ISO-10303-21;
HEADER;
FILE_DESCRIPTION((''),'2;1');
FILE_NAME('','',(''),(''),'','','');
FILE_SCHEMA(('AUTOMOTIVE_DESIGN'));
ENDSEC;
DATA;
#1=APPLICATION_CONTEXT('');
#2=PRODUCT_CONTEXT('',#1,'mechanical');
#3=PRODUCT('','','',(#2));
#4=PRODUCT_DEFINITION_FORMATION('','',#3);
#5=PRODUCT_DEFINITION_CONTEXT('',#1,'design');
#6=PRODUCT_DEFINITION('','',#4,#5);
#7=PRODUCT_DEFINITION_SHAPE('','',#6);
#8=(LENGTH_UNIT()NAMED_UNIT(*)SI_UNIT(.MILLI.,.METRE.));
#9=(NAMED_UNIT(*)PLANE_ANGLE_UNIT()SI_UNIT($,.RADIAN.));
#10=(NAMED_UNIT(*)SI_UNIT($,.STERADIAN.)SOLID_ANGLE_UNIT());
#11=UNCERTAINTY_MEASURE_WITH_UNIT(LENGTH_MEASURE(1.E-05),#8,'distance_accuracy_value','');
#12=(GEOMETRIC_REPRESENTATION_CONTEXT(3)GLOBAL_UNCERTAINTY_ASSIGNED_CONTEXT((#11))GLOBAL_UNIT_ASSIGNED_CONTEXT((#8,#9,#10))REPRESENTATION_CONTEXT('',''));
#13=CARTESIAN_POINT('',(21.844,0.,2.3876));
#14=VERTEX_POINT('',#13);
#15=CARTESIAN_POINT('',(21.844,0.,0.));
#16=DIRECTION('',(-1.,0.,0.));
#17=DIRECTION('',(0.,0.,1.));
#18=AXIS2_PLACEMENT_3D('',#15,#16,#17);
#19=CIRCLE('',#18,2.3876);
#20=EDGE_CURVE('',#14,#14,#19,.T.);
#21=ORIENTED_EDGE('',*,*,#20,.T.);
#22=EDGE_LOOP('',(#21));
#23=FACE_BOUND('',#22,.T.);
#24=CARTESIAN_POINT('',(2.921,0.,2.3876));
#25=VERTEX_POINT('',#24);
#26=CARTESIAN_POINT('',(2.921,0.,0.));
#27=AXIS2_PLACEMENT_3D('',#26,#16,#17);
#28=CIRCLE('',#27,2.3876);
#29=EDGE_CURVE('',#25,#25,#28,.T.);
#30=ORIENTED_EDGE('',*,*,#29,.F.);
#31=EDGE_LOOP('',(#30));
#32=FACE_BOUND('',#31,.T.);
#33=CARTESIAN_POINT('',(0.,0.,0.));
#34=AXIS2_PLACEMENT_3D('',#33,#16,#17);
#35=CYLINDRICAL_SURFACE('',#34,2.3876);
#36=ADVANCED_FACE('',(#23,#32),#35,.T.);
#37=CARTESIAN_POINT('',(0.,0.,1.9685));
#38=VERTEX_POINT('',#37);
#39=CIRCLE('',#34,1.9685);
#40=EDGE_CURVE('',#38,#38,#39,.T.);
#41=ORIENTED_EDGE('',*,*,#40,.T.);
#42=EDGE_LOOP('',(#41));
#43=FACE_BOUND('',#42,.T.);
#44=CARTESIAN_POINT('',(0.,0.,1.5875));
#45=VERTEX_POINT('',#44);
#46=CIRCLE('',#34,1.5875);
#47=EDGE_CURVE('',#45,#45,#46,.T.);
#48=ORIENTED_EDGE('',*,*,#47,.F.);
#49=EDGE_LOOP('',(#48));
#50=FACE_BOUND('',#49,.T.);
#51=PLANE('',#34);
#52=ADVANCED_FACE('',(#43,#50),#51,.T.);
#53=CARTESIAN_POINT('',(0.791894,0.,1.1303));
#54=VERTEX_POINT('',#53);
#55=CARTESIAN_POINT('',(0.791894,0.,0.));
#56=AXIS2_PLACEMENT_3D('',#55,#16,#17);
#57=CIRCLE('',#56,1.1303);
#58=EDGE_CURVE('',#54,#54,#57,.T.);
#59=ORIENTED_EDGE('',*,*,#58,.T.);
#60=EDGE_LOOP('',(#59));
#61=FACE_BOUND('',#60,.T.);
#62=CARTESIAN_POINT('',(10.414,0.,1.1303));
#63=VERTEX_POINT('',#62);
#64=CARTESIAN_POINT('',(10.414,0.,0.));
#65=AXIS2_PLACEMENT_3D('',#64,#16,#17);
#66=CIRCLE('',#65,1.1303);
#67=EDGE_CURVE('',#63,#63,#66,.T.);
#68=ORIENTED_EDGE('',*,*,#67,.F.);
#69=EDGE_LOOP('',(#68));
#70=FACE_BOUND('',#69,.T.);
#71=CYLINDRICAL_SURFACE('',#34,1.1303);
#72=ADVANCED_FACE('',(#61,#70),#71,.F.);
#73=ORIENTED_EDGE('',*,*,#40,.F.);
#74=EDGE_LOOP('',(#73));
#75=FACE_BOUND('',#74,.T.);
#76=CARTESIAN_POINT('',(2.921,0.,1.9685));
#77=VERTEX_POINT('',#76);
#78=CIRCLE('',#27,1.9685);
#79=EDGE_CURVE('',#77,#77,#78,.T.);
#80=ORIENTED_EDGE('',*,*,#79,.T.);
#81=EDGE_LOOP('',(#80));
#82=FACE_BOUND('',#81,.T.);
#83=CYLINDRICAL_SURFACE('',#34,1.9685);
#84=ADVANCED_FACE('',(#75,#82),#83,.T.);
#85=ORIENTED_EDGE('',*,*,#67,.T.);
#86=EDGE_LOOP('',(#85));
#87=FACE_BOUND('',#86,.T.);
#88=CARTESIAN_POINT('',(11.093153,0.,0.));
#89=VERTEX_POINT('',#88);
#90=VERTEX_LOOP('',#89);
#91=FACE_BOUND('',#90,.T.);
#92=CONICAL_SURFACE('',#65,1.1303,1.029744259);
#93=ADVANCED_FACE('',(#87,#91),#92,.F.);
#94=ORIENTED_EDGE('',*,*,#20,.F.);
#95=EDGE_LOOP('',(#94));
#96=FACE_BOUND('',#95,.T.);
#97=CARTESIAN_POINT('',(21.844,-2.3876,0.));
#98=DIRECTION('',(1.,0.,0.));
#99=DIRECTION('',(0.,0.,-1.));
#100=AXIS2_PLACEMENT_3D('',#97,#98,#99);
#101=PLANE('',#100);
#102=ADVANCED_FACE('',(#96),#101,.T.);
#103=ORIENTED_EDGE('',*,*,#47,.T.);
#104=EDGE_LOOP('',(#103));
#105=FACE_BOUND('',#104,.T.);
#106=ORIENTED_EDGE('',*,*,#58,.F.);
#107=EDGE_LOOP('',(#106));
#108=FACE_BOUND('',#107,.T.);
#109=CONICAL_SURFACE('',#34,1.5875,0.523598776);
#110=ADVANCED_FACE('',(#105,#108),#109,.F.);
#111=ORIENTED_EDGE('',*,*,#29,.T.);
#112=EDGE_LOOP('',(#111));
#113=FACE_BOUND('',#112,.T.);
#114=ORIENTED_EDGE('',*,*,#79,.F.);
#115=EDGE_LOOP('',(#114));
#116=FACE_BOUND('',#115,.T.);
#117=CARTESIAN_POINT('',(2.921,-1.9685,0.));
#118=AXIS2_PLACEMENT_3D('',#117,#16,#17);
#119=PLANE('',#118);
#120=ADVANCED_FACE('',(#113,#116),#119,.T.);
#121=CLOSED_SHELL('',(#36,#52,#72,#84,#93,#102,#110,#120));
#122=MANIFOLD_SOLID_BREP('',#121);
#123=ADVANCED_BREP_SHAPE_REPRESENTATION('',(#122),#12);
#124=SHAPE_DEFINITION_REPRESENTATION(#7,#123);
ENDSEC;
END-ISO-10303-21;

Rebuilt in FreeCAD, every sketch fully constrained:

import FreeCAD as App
import Part
import Sketcher
from FreeCAD import Vector
Q = App.Units.Quantity


def add_polygon(sketch, points):
    """Adds a closed chain of lines whose ends are joined by coincident constraints."""
    first, n = sketch.GeometryCount, len(points)
    for a, b in zip(points, points[1:] + points[:1]):
        sketch.addGeometry(Part.LineSegment(App.Vector(*a, 0), App.Vector(*b, 0)), False)
    for i in range(n):
        sketch.addConstraint(Sketcher.Constraint("Coincident", first + i, 2, first + (i + 1) % n, 1))

doc = App.newDocument("Part")
params = doc.addObject("Spreadsheet::Sheet", "Params")
for row, (alias, value) in enumerate([
    ("sketch1_width", "0.86 in"),
    ("sketch1_width2", "0.115 in"),
    ("sketch1_height", "0.094 in"),
    ("revolution_angle", "360 deg"),
    ("sketch2_diameter", "0.089 in"),
    ("hole_diameter", "0.089 in"),
    ("hole_depth", "0.41 in"),
    ("hole_csink_diameter", "0.125 in"),
], start=1):
    params.set(f"A{row}", alias)
    params.set(f"B{row}", "=" + value)
    params.setAlias(f"B{row}", alias)

body = doc.addObject("PartDesign::Body", "Body")

sketch1 = doc.addObject("Sketcher::SketchObject", "Sketch")
body.addObject(sketch1)
sketch1.AttachmentSupport = (doc.XY_Plane, [""])
sketch1.MapMode = "FlatFace"
add_polygon(sketch1, [(0, 0), (0, -1.97), (2.92, -1.97), (2.92, -2.39), (21.84, -2.39), (21.84, 0)])
sketch1.addConstraint(Sketcher.Constraint("Vertical", 0))
sketch1.addConstraint(Sketcher.Constraint("Horizontal", 1))
sketch1.addConstraint(Sketcher.Constraint("Vertical", 2))
sketch1.addConstraint(Sketcher.Constraint("Horizontal", 3))
sketch1.addConstraint(Sketcher.Constraint("Vertical", 4))
sketch1.addConstraint(Sketcher.Constraint("Horizontal", 5))
sketch1.addConstraint(Sketcher.Constraint("Coincident", 5, 2, -1, 1))
sketch1.addConstraint(Sketcher.Constraint("DistanceX", 5, 2, 5, 1, Q("0.86 in")))
sketch1.addConstraint(Sketcher.Constraint("DistanceX", 1, 1, 1, 2, Q("0.115 in")))
sketch1.addConstraint(Sketcher.Constraint("DistanceY", 4, 1, 4, 2, Q("0.094 in")))
sketch1.addConstraint(Sketcher.Constraint("DistanceY", 0, 2, 0, 1, Q("0.0775 in")))
sketch1.setExpression("Constraints[13]", "Params.sketch1_width")
sketch1.setExpression("Constraints[14]", "Params.sketch1_width2")
sketch1.setExpression("Constraints[15]", "Params.sketch1_height")
revolution = doc.addObject("PartDesign::Revolution", "Revolution")
body.addObject(revolution)
revolution.Profile = sketch1
revolution.ReferenceAxis = (sketch1, ["H_Axis"])
revolution.setExpression("Angle", "Params.revolution_angle")

sketch2 = doc.addObject("Sketcher::SketchObject", "Sketch001")
body.addObject(sketch2)
sketch2.AttachmentSupport = (doc.YZ_Plane, [""])
sketch2.MapMode = "FlatFace"
sketch2.addGeometry(Part.Circle(Vector(0, 0, 0), Vector(0, 0, 1), 1.1), False)
sketch2.addConstraint(Sketcher.Constraint("Coincident", 0, 3, -1, 1))
sketch2.addConstraint(Sketcher.Constraint("Diameter", 0, Q("0.089 in")))
sketch2.setExpression("Constraints[1]", "Params.sketch2_diameter")
doc.recompute()
hole = doc.addObject("PartDesign::Hole", "Hole")
body.addObject(hole)
hole.Profile = sketch2
hole.ThreadType = "None"
hole.setExpression("Diameter", "Params.hole_diameter")
hole.DepthType = "Dimension"
hole.setExpression("Depth", "Params.hole_depth")
hole.DrillPoint = "Angled"
hole.DrillPointAngle = 118
hole.HoleCutType = "Countersink"
hole.setExpression("HoleCutDiameter", "Params.hole_csink_diameter")
hole.HoleCutCountersinkAngle = 60
hole.Reversed = True

doc.recompute()
